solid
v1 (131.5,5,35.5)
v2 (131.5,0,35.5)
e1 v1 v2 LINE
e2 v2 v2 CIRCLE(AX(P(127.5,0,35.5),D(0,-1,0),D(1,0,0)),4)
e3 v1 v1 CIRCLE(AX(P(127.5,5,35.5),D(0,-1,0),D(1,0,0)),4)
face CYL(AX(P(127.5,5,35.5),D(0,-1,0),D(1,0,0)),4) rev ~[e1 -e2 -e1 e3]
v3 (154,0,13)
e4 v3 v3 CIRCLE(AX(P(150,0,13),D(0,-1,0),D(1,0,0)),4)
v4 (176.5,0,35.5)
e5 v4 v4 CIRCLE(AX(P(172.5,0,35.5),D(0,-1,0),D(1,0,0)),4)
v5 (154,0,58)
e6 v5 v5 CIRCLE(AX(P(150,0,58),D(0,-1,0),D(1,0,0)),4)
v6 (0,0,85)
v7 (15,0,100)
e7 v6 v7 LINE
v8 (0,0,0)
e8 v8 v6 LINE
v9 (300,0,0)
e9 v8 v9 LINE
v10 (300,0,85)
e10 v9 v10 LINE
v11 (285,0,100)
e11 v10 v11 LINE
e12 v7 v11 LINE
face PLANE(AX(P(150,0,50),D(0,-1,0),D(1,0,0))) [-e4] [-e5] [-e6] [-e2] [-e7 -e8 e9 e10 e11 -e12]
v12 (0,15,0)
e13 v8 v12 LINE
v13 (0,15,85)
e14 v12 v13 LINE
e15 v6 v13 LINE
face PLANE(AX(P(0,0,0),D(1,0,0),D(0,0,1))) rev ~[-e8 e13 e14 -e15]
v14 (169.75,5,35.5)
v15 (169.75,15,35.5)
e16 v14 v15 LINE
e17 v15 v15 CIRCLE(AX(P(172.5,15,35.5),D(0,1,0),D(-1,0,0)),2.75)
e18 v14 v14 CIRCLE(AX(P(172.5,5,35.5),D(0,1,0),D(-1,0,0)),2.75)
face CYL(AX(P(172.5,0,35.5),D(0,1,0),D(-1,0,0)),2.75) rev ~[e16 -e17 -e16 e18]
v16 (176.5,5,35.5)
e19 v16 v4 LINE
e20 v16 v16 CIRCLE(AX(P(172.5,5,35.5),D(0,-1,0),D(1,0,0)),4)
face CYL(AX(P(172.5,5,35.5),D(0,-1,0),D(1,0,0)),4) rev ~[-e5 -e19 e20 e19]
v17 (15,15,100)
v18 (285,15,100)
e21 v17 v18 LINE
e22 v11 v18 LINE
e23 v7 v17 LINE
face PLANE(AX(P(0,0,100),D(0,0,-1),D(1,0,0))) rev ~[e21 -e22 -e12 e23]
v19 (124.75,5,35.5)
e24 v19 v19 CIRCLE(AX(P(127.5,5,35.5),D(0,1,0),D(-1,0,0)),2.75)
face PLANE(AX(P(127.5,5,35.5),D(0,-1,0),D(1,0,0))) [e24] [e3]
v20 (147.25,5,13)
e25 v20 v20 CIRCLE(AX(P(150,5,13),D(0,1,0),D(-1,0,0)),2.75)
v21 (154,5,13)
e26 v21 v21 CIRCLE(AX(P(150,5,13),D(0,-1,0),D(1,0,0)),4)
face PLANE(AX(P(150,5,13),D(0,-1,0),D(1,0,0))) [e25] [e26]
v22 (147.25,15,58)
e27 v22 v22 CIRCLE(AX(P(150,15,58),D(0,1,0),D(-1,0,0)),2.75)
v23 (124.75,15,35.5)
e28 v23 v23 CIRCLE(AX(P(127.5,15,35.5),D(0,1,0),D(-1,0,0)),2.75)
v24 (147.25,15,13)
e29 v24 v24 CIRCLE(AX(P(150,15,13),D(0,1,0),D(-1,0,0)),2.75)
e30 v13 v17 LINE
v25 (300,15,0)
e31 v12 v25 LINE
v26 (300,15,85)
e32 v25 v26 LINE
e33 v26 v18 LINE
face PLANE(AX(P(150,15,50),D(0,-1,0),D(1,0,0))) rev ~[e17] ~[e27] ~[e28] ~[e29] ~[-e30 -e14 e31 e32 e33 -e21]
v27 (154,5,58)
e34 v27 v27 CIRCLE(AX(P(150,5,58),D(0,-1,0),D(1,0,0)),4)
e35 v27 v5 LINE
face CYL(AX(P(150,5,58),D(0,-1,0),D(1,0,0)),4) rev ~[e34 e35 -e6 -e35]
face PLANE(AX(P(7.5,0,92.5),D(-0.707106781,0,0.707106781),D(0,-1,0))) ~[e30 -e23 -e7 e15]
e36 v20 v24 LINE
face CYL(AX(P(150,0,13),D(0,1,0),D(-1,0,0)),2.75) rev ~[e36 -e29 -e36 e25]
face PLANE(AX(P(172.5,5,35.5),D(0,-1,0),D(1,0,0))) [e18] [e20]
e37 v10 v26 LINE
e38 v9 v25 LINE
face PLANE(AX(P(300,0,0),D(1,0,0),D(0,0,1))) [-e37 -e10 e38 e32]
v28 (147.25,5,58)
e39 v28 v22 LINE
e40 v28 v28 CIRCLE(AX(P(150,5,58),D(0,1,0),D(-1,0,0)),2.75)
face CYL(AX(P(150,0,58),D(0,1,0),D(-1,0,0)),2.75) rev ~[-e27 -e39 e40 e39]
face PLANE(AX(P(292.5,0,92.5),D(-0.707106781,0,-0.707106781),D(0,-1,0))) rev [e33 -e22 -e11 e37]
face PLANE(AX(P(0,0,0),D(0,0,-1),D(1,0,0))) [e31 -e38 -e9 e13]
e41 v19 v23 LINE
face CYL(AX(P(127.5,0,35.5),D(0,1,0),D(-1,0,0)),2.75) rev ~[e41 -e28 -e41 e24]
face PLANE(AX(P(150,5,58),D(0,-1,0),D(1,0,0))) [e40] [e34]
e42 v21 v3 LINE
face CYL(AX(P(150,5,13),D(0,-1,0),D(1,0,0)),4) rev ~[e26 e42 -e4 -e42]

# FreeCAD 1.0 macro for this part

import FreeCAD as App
import Part
import Sketcher


def edges_at(feature, points):
    """Names of the edges that pass closest to the given points."""
    edges = feature.Shape.Edges
    near = lambda p: min(range(len(edges)), key=lambda i: edges[i].distToShape(Part.Vertex(*p))[0])
    return sorted({f"Edge{near(p) + 1}" for p in points})


def add_polygon(sketch, points):
    """Adds a closed chain of lines whose ends are joined by coincident constraints."""
    first, n = sketch.GeometryCount, len(points)
    for a, b in zip(points, points[1:] + points[:1]):
        sketch.addGeometry(Part.LineSegment(App.Vector(*a, 0), App.Vector(*b, 0)), False)
    for i in range(n):
        sketch.addConstraint(Sketcher.Constraint("Coincident", first + i, 2, first + (i + 1) % n, 1))

doc = App.newDocument("Part")
body = doc.addObject("PartDesign::Body", "Body")

# Sketch on XZ plane
sketch1 = body.newObject("Sketcher::SketchObject", "Sketch")
sketch1.AttachmentSupport = (doc.getObject("XZ_Plane"), [""])
sketch1.MapMode = "FlatFace"
add_polygon(sketch1, [(0, 100), (0, 0), (300, 0), (300, 100)])  # lines 0-3
sketch1.addConstraint(Sketcher.Constraint("Vertical", 0))
sketch1.addConstraint(Sketcher.Constraint("Horizontal", 1))
sketch1.addConstraint(Sketcher.Constraint("Vertical", 2))
sketch1.addConstraint(Sketcher.Constraint("Horizontal", 3))
sketch1.addConstraint(Sketcher.Constraint("Coincident", 0, 2, -1, 1))
sketch1.addConstraint(Sketcher.Constraint("DistanceX", 1, 1, 1, 2, 300.0))
sketch1.addConstraint(Sketcher.Constraint("DistanceY", 0, 2, 0, 1, 100.0))
pad1 = body.newObject("PartDesign::Pad", "Pad")
pad1.Profile = sketch1
pad1.Length = 15
pad1.Reversed = True
doc.recompute()

chamfer = body.newObject("PartDesign::Chamfer", "Chamfer")
chamfer.Base = (pad1, edges_at(pad1, [(0, 7.5, 100), (300, 7.5, 100)]))
chamfer.Size = 15

# Sketch on XZ plane
sketch2 = body.newObject("Sketcher::SketchObject", "Sketch001")
sketch2.AttachmentSupport = (doc.getObject("XZ_Plane"), [""])
sketch2.MapMode = "FlatFace"
sketch2.addGeometry(Part.Circle(App.Vector(127.5, 35.5, 0), App.Vector(0, 0, 1), 2.8), False)
sketch2.addGeometry(Part.Circle(App.Vector(150, 58, 0), App.Vector(0, 0, 1), 2.8), False)
sketch2.addGeometry(Part.Circle(App.Vector(172.5, 35.5, 0), App.Vector(0, 0, 1), 2.8), False)
sketch2.addGeometry(Part.Circle(App.Vector(150, 13, 0), App.Vector(0, 0, 1), 2.8), False)
sketch2.addConstraint(Sketcher.Constraint("Equal", 0, 1))
sketch2.addConstraint(Sketcher.Constraint("Equal", 1, 2))
sketch2.addConstraint(Sketcher.Constraint("Equal", 2, 3))
sketch2.addConstraint(Sketcher.Constraint("Horizontal", 0, 3, 2, 3))
sketch2.addConstraint(Sketcher.Constraint("Vertical", 1, 3, 3, 3))
sketch2.addConstraint(Sketcher.Constraint("Diameter", 0, 5.5))
sketch2.addConstraint(Sketcher.Constraint("DistanceX", -1, 1, 1, 3, 150.0))
sketch2.addConstraint(Sketcher.Constraint("DistanceY", -1, 1, 1, 3, 58.0))
sketch2.addConstraint(Sketcher.Constraint("DistanceY", -1, 1, 3, 3, 13.0))
sketch2.addConstraint(Sketcher.Constraint("DistanceX", 0, 3, 2, 3, 45.0))
sketch2.addConstraint(Sketcher.Constraint("DistanceX", -1, 1, 0, 3, 127.5))
sketch2.addConstraint(Sketcher.Constraint("DistanceY", -1, 1, 0, 3, 35.5))
doc.recompute()
hole = body.newObject("PartDesign::Hole", "Hole")
hole.Profile = sketch2
hole.ThreadType = "None"
hole.Diameter = 5.5
hole.DepthType = "ThroughAll"
hole.HoleCutType = "Counterbore"
hole.HoleCutDiameter = 8
hole.HoleCutDepth = 5

doc.recompute()
